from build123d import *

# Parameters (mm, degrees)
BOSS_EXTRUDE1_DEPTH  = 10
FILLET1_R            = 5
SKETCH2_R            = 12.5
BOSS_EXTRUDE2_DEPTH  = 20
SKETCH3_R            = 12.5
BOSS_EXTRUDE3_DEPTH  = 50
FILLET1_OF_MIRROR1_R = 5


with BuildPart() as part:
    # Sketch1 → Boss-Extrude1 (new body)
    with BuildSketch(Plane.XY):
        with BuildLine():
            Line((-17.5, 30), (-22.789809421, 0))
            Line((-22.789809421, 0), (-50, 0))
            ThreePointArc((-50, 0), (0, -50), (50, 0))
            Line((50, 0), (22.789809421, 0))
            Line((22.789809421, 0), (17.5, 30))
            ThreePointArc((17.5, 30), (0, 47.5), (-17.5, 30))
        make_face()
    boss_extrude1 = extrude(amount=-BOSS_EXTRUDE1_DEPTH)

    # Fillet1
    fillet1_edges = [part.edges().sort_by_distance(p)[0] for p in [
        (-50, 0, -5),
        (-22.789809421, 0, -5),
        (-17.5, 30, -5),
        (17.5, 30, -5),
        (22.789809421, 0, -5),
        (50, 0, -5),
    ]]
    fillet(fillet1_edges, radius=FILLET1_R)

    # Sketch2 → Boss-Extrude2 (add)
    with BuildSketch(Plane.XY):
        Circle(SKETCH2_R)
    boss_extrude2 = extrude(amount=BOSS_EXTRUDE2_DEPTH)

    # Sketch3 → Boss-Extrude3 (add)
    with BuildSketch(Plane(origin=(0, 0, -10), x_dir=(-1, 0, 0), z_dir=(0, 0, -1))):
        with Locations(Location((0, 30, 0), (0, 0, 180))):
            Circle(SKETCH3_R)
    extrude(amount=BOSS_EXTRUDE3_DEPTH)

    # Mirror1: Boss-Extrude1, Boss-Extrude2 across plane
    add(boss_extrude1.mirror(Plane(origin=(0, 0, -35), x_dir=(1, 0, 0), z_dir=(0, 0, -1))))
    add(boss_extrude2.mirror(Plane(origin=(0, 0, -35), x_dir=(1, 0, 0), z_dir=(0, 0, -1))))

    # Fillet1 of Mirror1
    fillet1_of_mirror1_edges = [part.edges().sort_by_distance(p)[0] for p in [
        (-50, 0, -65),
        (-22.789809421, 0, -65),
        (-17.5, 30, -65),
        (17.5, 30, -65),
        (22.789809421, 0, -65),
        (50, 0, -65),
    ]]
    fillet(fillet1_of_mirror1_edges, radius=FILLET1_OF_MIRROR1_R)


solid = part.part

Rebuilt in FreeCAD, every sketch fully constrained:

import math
import FreeCAD as App
import Part
import Sketcher

V = App.Vector
Q = App.Units.Quantity


def edges_at(feature, points):
    """Names of the edges that pass closest to the given points."""
    edges = feature.Shape.Edges
    near = lambda p: min(range(len(edges)), key=lambda i: edges[i].distToShape(Part.Vertex(*p))[0])
    return sorted({f"Edge{near(p) + 1}" for p in points})

doc = App.newDocument("Part")
body = doc.addObject("PartDesign::Body", "Body")

sketch1 = body.newObject("Sketcher::SketchObject", "Sketch")
sketch1.AttachmentSupport = (doc.getObject("XY_Plane"), [""])
sketch1.MapMode = "FlatFace"
sketch1.addGeometry([
    Part.LineSegment(V(-18, 30, 0), V(-23, 0, 0)),
    Part.LineSegment(V(-23, 0, 0), V(-50, 0, 0)),
    Part.ArcOfCircle(Part.Circle(V(0, 0, 0), V(0, 0, 1), 50), math.radians(180), math.radians(360)),
    Part.LineSegment(V(50, 0, 0), V(23, 0, 0)),
    Part.LineSegment(V(23, 0, 0), V(18, 30, 0)),
    Part.ArcOfCircle(Part.Circle(V(0, 30, 0), V(0, 0, 1), 18), math.radians(0), math.radians(180)),
], False)
sketch1.addConstraint([
    Sketcher.Constraint("Coincident", 0, 2, 1, 1),
    Sketcher.Constraint("Coincident", 1, 2, 2, 1),
    Sketcher.Constraint("Coincident", 2, 2, 3, 1),
    Sketcher.Constraint("Coincident", 3, 2, 4, 1),
    Sketcher.Constraint("Coincident", 4, 2, 5, 1),
    Sketcher.Constraint("Coincident", 5, 2, 0, 1),
    Sketcher.Constraint("Horizontal", 1),
    Sketcher.Constraint("Horizontal", 3),
    Sketcher.Constraint("Coincident", 2, 3, -1, 1),
    Sketcher.Constraint("Symmetric", 0, 2, 3, 2, -1, 1),
    Sketcher.Constraint("Symmetric", 4, 2, 5, 2, -2),
    Sketcher.Constraint("PointOnObject", 0, 2, -1),
    Sketcher.Constraint("Horizontal", 5, 3, 4, 2),
    Sketcher.Constraint("Radius", 2, Q("50 mm")),
    Sketcher.Constraint("Radius", 5, Q("17.5 mm")),
    Sketcher.Constraint("Angle", 0, Q("-100 deg")),
    Sketcher.Constraint("DistanceY", -1, 1, 5, 3, Q("30 mm")),
])
pad1 = body.newObject("PartDesign::Pad", "Pad")
pad1.Profile = sketch1
pad1.Length = 10
pad1.Reversed = True
doc.recompute()

fillet = body.newObject("PartDesign::Fillet", "Fillet")
fillet.Base = (pad1, edges_at(pad1, [
    (-50, 0, -5),
    (-22.79, 0, -5),
    (-17.5, 30, -5),
    (17.5, 30, -5),
    (22.79, 0, -5),
    (50, 0, -5),
]))
fillet.Radius = 5

sketch2 = body.newObject("Sketcher::SketchObject", "Sketch001")
sketch2.AttachmentSupport = (doc.getObject("XY_Plane"), [""])
sketch2.MapMode = "FlatFace"
sketch2.addGeometry(Part.Circle(V(0, 0, 0), V(0, 0, 1), 12), False)
sketch2.addConstraint([
    Sketcher.Constraint("Coincident", 0, 3, -1, 1),
    Sketcher.Constraint("Diameter", 0, Q("25 mm")),
])
pad2 = body.newObject("PartDesign::Pad", "Pad001")
pad2.Profile = sketch2
pad2.Length = 20

sketch3 = body.newObject("Sketcher::SketchObject", "Sketch002")
sketch3.AttachmentSupport = (doc.getObject("XY_Plane"), [""])
sketch3.MapMode = "FlatFace"
sketch3.AttachmentOffset = App.Placement(V(0, 0, -10), App.Rotation())
sketch3.addGeometry(Part.Circle(V(0, 30, 0), V(0, 0, 1), 12), False)
sketch3.addConstraint([
    Sketcher.Constraint("PointOnObject", 0, 3, -2),
    Sketcher.Constraint("Diameter", 0, Q("25 mm")),
    Sketcher.Constraint("DistanceY", -1, 1, 0, 3, Q("30 mm")),
])
pad3 = body.newObject("PartDesign::Pad", "Pad002")
pad3.Profile = sketch3
pad3.Length = 50
pad3.Reversed = True
doc.recompute()

datumplane = body.newObject("PartDesign::Plane", "DatumPlane")
datumplane.AttachmentSupport = (doc.getObject("XY_Plane"), [""])
datumplane.MapMode = "FlatFace"
datumplane.AttachmentOffset = App.Placement(V(0, 0, -35), App.Rotation())
mirrored = body.newObject("PartDesign::Mirrored", "Mirrored")
mirrored.Originals = [pad1, pad2]
mirrored.MirrorPlane = (datumplane, [""])
body.Tip = mirrored
doc.recompute()

fillet2 = body.newObject("PartDesign::Fillet", "Fillet001")
fillet2.Base = (mirrored, edges_at(mirrored, [
    (-50, 0, -65),
    (-22.79, 0, -65),
    (-17.5, 30, -65),
    (17.5, 30, -65),
    (22.79, 0, -65),
    (50, 0, -65),
]))
fillet2.Radius = 5

doc.recompute()
